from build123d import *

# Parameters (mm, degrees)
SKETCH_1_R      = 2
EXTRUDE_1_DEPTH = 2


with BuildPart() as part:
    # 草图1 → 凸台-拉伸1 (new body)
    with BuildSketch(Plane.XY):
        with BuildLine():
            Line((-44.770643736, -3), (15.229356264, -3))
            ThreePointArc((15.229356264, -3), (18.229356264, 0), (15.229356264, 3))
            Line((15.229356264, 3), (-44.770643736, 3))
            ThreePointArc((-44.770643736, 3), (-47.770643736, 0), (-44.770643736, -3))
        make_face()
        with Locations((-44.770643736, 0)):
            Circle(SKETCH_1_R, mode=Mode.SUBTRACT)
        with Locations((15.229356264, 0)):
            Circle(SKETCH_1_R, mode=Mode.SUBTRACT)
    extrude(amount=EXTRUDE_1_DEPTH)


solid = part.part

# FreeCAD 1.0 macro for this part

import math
import FreeCAD as App
import Part
import Sketcher

V = App.Vector

doc = App.newDocument("Part")
body = doc.addObject("PartDesign::Body", "Body")

# Sketch on XY plane
sketch1 = body.newObject("Sketcher::SketchObject", "Sketch")
sketch1.AttachmentSupport = (doc.getObject("XY_Plane"), [""])
sketch1.MapMode = "FlatFace"
sketch1.addGeometry([
    Part.LineSegment(V(-44.8, -3, 0), V(15.2, -3, 0)),  # 0
    Part.ArcOfCircle(Part.Circle(V(15.2, 0, 0), V(0, 0, 1), 3), math.radians(-90), math.radians(90)),  # 1
    Part.LineSegment(V(15.2, 3, 0), V(-44.8, 3, 0)),  # 2
    Part.ArcOfCircle(Part.Circle(V(-44.8, 0, 0), V(0, 0, 1), 3), math.radians(90), math.radians(270)),  # 3
    Part.Circle(V(-44.8, 0, 0), V(0, 0, 1), 2),  # 4
    Part.Circle(V(15.2, 0, 0), V(0, 0, 1), 2),  # 5
], False)
sketch1.addConstraint([
    Sketcher.Constraint("Tangent", 0, 2, 1, 1),
    Sketcher.Constraint("Tangent", 1, 2, 2, 1),
    Sketcher.Constraint("Tangent", 2, 2, 3, 1),
    Sketcher.Constraint("Tangent", 3, 2, 0, 1),
    Sketcher.Constraint("Horizontal", 0),
    Sketcher.Constraint("Horizontal", 2),
    Sketcher.Constraint("Coincident", 4, 3, 3, 3),
    Sketcher.Constraint("Coincident", 5, 3, 1, 3),
    Sketcher.Constraint("Equal", 4, 5),
    Sketcher.Constraint("PointOnObject", 1, 3, -1),
    Sketcher.Constraint("Diameter", 4, 4.0),
    Sketcher.Constraint("Radius", 1, 3.0),
    Sketcher.Constraint("DistanceX", 0, 1, 0, 2, 60.0),
    Sketcher.Constraint("DistanceX", -1, 1, 1, 3, 15.229356),
])
pad1 = body.newObject("PartDesign::Pad", "Pad")
pad1.Profile = sketch1
pad1.Length = 2

doc.recompute()
